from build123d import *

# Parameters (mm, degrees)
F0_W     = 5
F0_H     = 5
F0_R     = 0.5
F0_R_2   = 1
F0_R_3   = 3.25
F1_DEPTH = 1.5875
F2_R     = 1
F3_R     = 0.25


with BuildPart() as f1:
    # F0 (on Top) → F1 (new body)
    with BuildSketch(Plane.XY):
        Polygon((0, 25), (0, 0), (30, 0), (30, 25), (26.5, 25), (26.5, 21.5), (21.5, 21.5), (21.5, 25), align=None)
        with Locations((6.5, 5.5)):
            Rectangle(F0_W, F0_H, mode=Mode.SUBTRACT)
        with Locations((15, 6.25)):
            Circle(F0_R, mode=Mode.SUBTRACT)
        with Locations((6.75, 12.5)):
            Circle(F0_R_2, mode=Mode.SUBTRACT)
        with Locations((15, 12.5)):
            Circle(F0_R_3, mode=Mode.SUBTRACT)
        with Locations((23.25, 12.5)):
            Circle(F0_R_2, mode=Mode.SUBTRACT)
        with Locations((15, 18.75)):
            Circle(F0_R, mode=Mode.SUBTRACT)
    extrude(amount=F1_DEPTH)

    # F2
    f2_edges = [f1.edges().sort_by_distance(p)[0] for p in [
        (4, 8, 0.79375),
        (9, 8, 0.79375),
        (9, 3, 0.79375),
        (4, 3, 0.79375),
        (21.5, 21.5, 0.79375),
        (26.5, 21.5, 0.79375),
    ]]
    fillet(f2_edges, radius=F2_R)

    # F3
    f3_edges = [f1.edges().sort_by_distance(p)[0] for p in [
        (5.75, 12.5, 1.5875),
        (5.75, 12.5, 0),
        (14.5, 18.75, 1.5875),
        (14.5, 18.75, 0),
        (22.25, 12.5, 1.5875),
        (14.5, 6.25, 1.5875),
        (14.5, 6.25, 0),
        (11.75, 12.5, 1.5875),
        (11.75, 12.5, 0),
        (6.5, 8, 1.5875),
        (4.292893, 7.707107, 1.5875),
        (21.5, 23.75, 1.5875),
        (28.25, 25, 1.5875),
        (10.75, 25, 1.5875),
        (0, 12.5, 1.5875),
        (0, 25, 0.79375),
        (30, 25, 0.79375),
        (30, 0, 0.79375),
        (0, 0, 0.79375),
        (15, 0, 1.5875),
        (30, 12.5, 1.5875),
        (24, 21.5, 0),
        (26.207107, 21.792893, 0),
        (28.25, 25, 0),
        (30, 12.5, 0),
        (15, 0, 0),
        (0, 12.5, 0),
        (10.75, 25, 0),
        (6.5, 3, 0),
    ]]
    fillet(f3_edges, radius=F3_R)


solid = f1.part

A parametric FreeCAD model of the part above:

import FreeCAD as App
import Part
import Sketcher
Q = App.Units.Quantity


def edges_at(feature, points):
    """Names of the edges that pass closest to the given points."""
    edges = feature.Shape.Edges
    near = lambda p: min(range(len(edges)), key=lambda i: edges[i].distToShape(Part.Vertex(*p))[0])
    return sorted({f"Edge{near(p) + 1}" for p in points})


def add_polygon(sketch, points):
    """Adds a closed chain of lines whose ends are joined by coincident constraints."""
    first, n = sketch.GeometryCount, len(points)
    for a, b in zip(points, points[1:] + points[:1]):
        sketch.addGeometry(Part.LineSegment(App.Vector(*a, 0), App.Vector(*b, 0)), False)
    for i in range(n):
        sketch.addConstraint(Sketcher.Constraint("Coincident", first + i, 2, first + (i + 1) % n, 1))

doc = App.newDocument("Part")
body = doc.addObject("PartDesign::Body", "Body")

# Sketch on XY plane
sketch1 = body.newObject("Sketcher::SketchObject", "Sketch")
sketch1.AttachmentSupport = (doc.getObject("XY_Plane"), [""])
sketch1.MapMode = "FlatFace"
add_polygon(sketch1, [(0, 25), (0, 0), (30, 0), (30, 25), (26.5, 25), (26.5, 21.5), (21.5, 21.5), (21.5, 25)])  # lines 0-7
add_polygon(sketch1, [(9, 3), (4, 3), (4, 8), (9, 8)])  # lines 8-11
sketch1.addGeometry(Part.Circle(App.Vector(15, 6.2, 0), App.Vector(0, 0, 1), 0.5), False)  # 12
sketch1.addGeometry(Part.Circle(App.Vector(6.8, 12.5, 0), App.Vector(0, 0, 1), 1), False)  # 13
sketch1.addGeometry(Part.Circle(App.Vector(15, 12.5, 0), App.Vector(0, 0, 1), 3.2), False)  # 14
sketch1.addGeometry(Part.Circle(App.Vector(23.2, 12.5, 0), App.Vector(0, 0, 1), 1), False)  # 15
sketch1.addGeometry(Part.Circle(App.Vector(15, 18.8, 0), App.Vector(0, 0, 1), 0.5), False)  # 16
sketch1.addConstraint(Sketcher.Constraint("Vertical", 0))
sketch1.addConstraint(Sketcher.Constraint("Horizontal", 1))
sketch1.addConstraint(Sketcher.Constraint("Vertical", 2))
sketch1.addConstraint(Sketcher.Constraint("Horizontal", 3))
sketch1.addConstraint(Sketcher.Constraint("Vertical", 4))
sketch1.addConstraint(Sketcher.Constraint("Horizontal", 5))
sketch1.addConstraint(Sketcher.Constraint("Vertical", 6))
sketch1.addConstraint(Sketcher.Constraint("Horizontal", 7))
sketch1.addConstraint(Sketcher.Constraint("Horizontal", 8))
sketch1.addConstraint(Sketcher.Constraint("Vertical", 9))
sketch1.addConstraint(Sketcher.Constraint("Horizontal", 10))
sketch1.addConstraint(Sketcher.Constraint("Vertical", 11))
sketch1.addConstraint(Sketcher.Constraint("Coincident", 0, 2, -1, 1))
sketch1.addConstraint(Sketcher.Constraint("Equal", 13, 15))
sketch1.addConstraint(Sketcher.Constraint("Equal", 12, 16))
sketch1.addConstraint(Sketcher.Constraint("Horizontal", 13, 3, 14, 3))
sketch1.addConstraint(Sketcher.Constraint("Horizontal", 14, 3, 15, 3))
sketch1.addConstraint(Sketcher.Constraint("Horizontal", 3, 2, 6, 2))
sketch1.addConstraint(Sketcher.Constraint("Vertical", 12, 3, 14, 3))
sketch1.addConstraint(Sketcher.Constraint("Vertical", 14, 3, 16, 3))
sketch1.addConstraint(Sketcher.Constraint("Equal", 5, 8))
sketch1.addConstraint(Sketcher.Constraint("Equal", 3, 4))
sketch1.addConstraint(Sketcher.Constraint("Equal", 10, 9))
sketch1.addConstraint(Sketcher.Constraint("Diameter", 12, Q("1 mm")))
sketch1.addConstraint(Sketcher.Constraint("Diameter", 13, Q("2 mm")))
sketch1.addConstraint(Sketcher.Constraint("Diameter", 14, Q("6.5 mm")))
sketch1.addConstraint(Sketcher.Constraint("DistanceX", 1, 1, 1, 2, Q("30 mm")))
sketch1.addConstraint(Sketcher.Constraint("DistanceX", 5, 2, 5, 1, Q("5 mm")))
sketch1.addConstraint(Sketcher.Constraint("DistanceY", 0, 2, 0, 1, Q("25 mm")))
sketch1.addConstraint(Sketcher.Constraint("DistanceX", 3, 2, 3, 1, Q("3.5 mm")))
sketch1.addConstraint(Sketcher.Constraint("DistanceX", -1, 1, 12, 3, Q("15 mm")))
sketch1.addConstraint(Sketcher.Constraint("DistanceX", -1, 1, 8, 2, Q("4 mm")))
sketch1.addConstraint(Sketcher.Constraint("DistanceY", -1, 1, 8, 2, Q("3 mm")))
sketch1.addConstraint(Sketcher.Constraint("DistanceY", 15, 3, 4, 2, Q("9 mm")))
sketch1.addConstraint(Sketcher.Constraint("DistanceX", 13, 3, 15, 3, Q("16.5 mm")))
sketch1.addConstraint(Sketcher.Constraint("DistanceY", 12, 3, 16, 3, Q("12.5 mm")))
sketch1.addConstraint(Sketcher.Constraint("DistanceY", -1, 1, 12, 3, Q("6.25 mm")))
sketch1.addConstraint(Sketcher.Constraint("DistanceX", -1, 1, 13, 3, Q("6.75 mm")))
pad1 = body.newObject("PartDesign::Pad", "Pad")
pad1.Profile = sketch1
pad1.Length = 1.5875
doc.recompute()

fillet = body.newObject("PartDesign::Fillet", "Fillet")
fillet.Base = (pad1, edges_at(pad1, [
    (4, 8, 0.794),
    (9, 8, 0.794),
    (9, 3, 0.794),
    (4, 3, 0.794),
    (21.5, 21.5, 0.794),
    (26.5, 21.5, 0.794),
]))
fillet.Radius = 1
doc.recompute()

fillet2 = body.newObject("PartDesign::Fillet", "Fillet001")
fillet2.Base = (fillet, edges_at(fillet, [
    (5.75, 12.5, 1.587),
    (5.75, 12.5, 0),
    (14.5, 18.75, 1.587),
    (14.5, 18.75, 0),
    (22.25, 12.5, 1.587),
    (14.5, 6.25, 1.587),
    (14.5, 6.25, 0),
    (11.75, 12.5, 1.587),
    (11.75, 12.5, 0),
    (6.5, 8, 1.587),
    (4.293, 7.707, 1.587),
    (21.5, 23.75, 1.587),
    (28.25, 25, 1.587),
    (10.75, 25, 1.587),
    (0, 12.5, 1.587),
    (0, 25, 0.794),
    (30, 25, 0.794),
    (30, 0, 0.794),
    (0, 0, 0.794),
    (15, 0, 1.587),
    (30, 12.5, 1.587),
    (24, 21.5, 0),
    (26.207, 21.793, 0),
    (28.25, 25, 0),
    (30, 12.5, 0),
    (15, 0, 0),
    (0, 12.5, 0),
    (10.75, 25, 0),
    (6.5, 3, 0),
]))
fillet2.Radius = 0.25

doc.recompute()
